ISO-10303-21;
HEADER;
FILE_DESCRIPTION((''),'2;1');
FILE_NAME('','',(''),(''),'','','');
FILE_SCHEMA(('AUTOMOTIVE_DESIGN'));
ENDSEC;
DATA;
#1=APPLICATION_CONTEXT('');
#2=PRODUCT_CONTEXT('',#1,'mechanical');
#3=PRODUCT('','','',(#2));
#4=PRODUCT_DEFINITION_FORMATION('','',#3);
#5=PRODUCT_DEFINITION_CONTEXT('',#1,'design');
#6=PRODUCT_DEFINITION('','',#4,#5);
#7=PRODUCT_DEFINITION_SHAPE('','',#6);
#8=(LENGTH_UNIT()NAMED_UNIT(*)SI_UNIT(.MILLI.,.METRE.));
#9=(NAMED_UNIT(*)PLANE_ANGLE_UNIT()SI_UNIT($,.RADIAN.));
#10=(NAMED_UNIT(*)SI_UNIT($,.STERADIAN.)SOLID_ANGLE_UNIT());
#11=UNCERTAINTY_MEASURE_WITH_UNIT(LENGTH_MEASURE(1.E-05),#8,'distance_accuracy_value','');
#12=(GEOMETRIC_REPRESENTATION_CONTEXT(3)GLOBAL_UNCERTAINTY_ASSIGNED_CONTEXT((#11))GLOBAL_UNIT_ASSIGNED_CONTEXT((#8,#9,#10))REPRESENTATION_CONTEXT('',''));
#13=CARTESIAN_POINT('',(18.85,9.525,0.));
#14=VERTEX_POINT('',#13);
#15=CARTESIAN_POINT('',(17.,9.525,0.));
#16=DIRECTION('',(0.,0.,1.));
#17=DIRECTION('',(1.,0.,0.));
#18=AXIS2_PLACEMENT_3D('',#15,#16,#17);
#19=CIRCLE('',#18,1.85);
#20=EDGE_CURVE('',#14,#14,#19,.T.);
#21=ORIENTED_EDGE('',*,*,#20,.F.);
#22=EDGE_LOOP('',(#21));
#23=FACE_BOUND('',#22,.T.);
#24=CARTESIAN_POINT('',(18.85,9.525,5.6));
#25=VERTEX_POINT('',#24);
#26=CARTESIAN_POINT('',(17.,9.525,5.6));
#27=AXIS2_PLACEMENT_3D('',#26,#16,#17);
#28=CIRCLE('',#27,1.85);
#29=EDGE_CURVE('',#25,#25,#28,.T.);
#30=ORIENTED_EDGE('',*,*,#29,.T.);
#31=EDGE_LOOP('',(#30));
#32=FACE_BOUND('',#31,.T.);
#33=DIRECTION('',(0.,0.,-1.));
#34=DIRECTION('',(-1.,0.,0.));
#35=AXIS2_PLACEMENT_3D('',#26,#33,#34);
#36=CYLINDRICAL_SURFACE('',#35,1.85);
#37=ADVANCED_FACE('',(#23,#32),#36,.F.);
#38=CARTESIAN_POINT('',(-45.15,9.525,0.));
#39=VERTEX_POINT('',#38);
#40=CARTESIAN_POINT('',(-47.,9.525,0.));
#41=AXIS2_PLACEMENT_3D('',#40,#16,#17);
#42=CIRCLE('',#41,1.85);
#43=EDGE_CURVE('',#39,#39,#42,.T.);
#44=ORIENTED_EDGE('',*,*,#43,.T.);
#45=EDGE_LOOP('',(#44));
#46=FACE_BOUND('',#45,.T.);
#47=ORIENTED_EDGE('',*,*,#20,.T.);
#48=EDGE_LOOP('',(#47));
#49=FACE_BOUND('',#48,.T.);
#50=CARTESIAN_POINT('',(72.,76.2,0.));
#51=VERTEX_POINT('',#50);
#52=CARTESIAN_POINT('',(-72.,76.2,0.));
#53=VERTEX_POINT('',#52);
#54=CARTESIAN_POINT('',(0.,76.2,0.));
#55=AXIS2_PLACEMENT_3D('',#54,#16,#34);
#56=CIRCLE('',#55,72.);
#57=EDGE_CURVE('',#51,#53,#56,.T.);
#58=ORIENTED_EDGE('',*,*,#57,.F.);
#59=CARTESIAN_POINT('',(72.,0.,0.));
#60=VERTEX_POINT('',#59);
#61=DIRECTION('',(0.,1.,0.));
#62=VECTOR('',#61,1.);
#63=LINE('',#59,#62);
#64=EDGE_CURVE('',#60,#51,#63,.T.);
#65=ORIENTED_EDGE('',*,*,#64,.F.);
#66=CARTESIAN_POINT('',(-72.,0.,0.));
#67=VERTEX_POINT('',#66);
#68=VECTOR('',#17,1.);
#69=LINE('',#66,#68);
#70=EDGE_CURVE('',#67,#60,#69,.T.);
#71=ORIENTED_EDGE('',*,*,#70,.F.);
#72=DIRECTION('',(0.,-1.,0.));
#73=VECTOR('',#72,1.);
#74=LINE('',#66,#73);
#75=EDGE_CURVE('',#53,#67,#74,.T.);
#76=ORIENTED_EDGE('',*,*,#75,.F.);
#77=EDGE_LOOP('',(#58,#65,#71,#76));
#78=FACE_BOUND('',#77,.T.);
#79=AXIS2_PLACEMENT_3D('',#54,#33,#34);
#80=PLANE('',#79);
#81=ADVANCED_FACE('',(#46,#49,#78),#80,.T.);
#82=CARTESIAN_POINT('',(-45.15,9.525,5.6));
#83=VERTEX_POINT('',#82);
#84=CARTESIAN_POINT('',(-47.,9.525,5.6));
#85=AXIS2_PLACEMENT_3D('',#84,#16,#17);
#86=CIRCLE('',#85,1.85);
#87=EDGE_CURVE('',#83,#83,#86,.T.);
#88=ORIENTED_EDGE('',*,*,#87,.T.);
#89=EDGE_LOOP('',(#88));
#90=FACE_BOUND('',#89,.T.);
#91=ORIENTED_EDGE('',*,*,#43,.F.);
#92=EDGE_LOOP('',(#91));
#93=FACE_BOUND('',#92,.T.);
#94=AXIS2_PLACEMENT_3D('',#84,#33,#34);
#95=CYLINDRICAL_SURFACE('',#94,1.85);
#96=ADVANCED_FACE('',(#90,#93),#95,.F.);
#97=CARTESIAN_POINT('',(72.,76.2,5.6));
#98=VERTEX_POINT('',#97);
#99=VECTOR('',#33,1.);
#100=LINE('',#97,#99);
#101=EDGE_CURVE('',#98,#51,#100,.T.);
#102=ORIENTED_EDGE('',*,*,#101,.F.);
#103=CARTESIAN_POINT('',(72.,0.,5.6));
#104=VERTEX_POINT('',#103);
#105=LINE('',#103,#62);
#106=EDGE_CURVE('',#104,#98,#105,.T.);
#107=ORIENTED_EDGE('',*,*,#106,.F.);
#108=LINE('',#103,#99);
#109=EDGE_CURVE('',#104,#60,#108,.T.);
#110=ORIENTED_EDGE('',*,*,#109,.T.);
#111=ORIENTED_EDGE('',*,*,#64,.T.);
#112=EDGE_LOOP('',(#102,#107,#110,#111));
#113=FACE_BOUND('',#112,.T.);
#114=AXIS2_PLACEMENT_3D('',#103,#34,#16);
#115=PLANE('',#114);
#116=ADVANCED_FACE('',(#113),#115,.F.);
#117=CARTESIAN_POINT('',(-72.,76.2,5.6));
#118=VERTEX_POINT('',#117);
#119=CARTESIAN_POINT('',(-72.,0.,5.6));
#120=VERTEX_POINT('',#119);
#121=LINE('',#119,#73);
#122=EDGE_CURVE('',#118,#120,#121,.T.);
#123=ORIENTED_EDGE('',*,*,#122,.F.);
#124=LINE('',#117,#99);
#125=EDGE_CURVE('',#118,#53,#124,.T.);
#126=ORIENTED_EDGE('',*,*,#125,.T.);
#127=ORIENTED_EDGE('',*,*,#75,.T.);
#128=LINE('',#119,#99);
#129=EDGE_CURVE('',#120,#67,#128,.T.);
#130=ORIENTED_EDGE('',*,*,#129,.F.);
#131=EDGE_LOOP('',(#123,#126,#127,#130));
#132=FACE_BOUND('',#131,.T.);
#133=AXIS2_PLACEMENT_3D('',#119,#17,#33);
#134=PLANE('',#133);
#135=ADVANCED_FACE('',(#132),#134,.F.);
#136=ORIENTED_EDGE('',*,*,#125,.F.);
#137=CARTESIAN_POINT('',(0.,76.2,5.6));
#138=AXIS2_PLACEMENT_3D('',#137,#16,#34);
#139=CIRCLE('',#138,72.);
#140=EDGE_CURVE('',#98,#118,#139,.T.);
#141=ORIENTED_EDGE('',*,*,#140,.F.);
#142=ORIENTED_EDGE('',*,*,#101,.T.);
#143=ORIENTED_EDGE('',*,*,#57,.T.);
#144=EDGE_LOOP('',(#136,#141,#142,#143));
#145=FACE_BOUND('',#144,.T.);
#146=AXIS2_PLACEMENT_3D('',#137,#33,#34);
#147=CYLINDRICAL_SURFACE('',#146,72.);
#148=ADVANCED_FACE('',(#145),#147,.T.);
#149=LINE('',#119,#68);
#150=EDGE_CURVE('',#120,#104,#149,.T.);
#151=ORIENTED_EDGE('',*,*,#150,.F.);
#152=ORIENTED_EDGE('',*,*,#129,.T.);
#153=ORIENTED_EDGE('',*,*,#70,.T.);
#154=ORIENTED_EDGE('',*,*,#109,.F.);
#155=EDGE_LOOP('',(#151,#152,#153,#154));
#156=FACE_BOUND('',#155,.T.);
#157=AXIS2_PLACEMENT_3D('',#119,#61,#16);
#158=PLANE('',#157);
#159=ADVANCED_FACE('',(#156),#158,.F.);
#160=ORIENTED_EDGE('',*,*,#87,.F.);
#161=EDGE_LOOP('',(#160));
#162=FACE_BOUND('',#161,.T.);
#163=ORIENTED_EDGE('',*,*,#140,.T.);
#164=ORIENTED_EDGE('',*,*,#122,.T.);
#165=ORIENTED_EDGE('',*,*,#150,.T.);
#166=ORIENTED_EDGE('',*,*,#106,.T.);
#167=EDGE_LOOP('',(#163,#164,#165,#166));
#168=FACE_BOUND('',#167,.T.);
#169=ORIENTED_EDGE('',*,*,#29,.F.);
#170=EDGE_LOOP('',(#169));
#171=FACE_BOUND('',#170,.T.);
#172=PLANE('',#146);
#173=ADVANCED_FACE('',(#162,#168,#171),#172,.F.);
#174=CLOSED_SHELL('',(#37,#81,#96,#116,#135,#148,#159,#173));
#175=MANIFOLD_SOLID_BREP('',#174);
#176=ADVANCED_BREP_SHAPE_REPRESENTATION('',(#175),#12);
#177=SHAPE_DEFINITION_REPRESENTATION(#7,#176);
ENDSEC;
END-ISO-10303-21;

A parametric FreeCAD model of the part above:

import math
import FreeCAD as App
import Part
import Sketcher
Q = App.Units.Quantity

doc = App.newDocument("Part")
params = doc.addObject("Spreadsheet::Sheet", "Params")
for row, (alias, value) in enumerate([
    ("sketch1_radius", "72 mm"),
    ("sketch1_diameter", "3.7 mm"),
    ("sketch1_height", "76.2 mm"),
    ("pad1_length", "5.6 mm"),
], start=1):
    params.set(f"A{row}", alias)
    params.set(f"B{row}", "=" + value)
    params.setAlias(f"B{row}", alias)

body = doc.addObject("PartDesign::Body", "Body")

# Sketch on XY plane
sketch1 = body.newObject("Sketcher::SketchObject", "Sketch")
sketch1.AttachmentSupport = (doc.getObject("XY_Plane"), [""])
sketch1.MapMode = "FlatFace"
sketch1.addGeometry([
    Part.LineSegment(App.Vector(-72, 0, 0), App.Vector(72, 0, 0)),  # 0
    Part.LineSegment(App.Vector(72, 0, 0), App.Vector(72, 76.2, 0)),  # 1
    Part.ArcOfCircle(Part.Circle(App.Vector(0, 76.2, 0), App.Vector(0, 0, 1), 72), math.radians(0), math.radians(180)),  # 2
    Part.LineSegment(App.Vector(-72, 76.2, 0), App.Vector(-72, 0, 0)),  # 3
    Part.Circle(App.Vector(-47, 9.5, 0), App.Vector(0, 0, 1), 1.9),  # 4
    Part.Circle(App.Vector(17, 9.5, 0), App.Vector(0, 0, 1), 1.9),  # 5
], False)
sketch1.addConstraint([
    Sketcher.Constraint("Coincident", 0, 2, 1, 1),
    Sketcher.Constraint("Tangent", 1, 2, 2, 1),
    Sketcher.Constraint("Tangent", 2, 2, 3, 1),
    Sketcher.Constraint("Coincident", 3, 2, 0, 1),
    Sketcher.Constraint("Horizontal", 0),
    Sketcher.Constraint("Vertical", 1),
    Sketcher.Constraint("Vertical", 3),
    Sketcher.Constraint("Equal", 4, 5),
    Sketcher.Constraint("Symmetric", 0, 2, 3, 2, -1, 1),
    Sketcher.Constraint("Horizontal", 4, 3, 5, 3),
    Sketcher.Constraint("Radius", 2, Q("72 mm")),
    Sketcher.Constraint("Diameter", 4, Q("3.7 mm")),
    Sketcher.Constraint("DistanceY", 1, 1, 1, 2, Q("76.2 mm")),
    Sketcher.Constraint("DistanceX", 4, 3, -1, 1, Q("47 mm")),
    Sketcher.Constraint("DistanceX", -1, 1, 5, 3, Q("17 mm")),
    Sketcher.Constraint("DistanceY", -1, 1, 4, 3, Q("9.525 mm")),
])
sketch1.setExpression("Constraints[10]", "Params.sketch1_radius")
sketch1.setExpression("Constraints[11]", "Params.sketch1_diameter")
sketch1.setExpression("Constraints[12]", "Params.sketch1_height")
pad1 = body.newObject("PartDesign::Pad", "Pad")
pad1.Profile = sketch1
pad1.setExpression("Length", "Params.pad1_length")

doc.recompute()
